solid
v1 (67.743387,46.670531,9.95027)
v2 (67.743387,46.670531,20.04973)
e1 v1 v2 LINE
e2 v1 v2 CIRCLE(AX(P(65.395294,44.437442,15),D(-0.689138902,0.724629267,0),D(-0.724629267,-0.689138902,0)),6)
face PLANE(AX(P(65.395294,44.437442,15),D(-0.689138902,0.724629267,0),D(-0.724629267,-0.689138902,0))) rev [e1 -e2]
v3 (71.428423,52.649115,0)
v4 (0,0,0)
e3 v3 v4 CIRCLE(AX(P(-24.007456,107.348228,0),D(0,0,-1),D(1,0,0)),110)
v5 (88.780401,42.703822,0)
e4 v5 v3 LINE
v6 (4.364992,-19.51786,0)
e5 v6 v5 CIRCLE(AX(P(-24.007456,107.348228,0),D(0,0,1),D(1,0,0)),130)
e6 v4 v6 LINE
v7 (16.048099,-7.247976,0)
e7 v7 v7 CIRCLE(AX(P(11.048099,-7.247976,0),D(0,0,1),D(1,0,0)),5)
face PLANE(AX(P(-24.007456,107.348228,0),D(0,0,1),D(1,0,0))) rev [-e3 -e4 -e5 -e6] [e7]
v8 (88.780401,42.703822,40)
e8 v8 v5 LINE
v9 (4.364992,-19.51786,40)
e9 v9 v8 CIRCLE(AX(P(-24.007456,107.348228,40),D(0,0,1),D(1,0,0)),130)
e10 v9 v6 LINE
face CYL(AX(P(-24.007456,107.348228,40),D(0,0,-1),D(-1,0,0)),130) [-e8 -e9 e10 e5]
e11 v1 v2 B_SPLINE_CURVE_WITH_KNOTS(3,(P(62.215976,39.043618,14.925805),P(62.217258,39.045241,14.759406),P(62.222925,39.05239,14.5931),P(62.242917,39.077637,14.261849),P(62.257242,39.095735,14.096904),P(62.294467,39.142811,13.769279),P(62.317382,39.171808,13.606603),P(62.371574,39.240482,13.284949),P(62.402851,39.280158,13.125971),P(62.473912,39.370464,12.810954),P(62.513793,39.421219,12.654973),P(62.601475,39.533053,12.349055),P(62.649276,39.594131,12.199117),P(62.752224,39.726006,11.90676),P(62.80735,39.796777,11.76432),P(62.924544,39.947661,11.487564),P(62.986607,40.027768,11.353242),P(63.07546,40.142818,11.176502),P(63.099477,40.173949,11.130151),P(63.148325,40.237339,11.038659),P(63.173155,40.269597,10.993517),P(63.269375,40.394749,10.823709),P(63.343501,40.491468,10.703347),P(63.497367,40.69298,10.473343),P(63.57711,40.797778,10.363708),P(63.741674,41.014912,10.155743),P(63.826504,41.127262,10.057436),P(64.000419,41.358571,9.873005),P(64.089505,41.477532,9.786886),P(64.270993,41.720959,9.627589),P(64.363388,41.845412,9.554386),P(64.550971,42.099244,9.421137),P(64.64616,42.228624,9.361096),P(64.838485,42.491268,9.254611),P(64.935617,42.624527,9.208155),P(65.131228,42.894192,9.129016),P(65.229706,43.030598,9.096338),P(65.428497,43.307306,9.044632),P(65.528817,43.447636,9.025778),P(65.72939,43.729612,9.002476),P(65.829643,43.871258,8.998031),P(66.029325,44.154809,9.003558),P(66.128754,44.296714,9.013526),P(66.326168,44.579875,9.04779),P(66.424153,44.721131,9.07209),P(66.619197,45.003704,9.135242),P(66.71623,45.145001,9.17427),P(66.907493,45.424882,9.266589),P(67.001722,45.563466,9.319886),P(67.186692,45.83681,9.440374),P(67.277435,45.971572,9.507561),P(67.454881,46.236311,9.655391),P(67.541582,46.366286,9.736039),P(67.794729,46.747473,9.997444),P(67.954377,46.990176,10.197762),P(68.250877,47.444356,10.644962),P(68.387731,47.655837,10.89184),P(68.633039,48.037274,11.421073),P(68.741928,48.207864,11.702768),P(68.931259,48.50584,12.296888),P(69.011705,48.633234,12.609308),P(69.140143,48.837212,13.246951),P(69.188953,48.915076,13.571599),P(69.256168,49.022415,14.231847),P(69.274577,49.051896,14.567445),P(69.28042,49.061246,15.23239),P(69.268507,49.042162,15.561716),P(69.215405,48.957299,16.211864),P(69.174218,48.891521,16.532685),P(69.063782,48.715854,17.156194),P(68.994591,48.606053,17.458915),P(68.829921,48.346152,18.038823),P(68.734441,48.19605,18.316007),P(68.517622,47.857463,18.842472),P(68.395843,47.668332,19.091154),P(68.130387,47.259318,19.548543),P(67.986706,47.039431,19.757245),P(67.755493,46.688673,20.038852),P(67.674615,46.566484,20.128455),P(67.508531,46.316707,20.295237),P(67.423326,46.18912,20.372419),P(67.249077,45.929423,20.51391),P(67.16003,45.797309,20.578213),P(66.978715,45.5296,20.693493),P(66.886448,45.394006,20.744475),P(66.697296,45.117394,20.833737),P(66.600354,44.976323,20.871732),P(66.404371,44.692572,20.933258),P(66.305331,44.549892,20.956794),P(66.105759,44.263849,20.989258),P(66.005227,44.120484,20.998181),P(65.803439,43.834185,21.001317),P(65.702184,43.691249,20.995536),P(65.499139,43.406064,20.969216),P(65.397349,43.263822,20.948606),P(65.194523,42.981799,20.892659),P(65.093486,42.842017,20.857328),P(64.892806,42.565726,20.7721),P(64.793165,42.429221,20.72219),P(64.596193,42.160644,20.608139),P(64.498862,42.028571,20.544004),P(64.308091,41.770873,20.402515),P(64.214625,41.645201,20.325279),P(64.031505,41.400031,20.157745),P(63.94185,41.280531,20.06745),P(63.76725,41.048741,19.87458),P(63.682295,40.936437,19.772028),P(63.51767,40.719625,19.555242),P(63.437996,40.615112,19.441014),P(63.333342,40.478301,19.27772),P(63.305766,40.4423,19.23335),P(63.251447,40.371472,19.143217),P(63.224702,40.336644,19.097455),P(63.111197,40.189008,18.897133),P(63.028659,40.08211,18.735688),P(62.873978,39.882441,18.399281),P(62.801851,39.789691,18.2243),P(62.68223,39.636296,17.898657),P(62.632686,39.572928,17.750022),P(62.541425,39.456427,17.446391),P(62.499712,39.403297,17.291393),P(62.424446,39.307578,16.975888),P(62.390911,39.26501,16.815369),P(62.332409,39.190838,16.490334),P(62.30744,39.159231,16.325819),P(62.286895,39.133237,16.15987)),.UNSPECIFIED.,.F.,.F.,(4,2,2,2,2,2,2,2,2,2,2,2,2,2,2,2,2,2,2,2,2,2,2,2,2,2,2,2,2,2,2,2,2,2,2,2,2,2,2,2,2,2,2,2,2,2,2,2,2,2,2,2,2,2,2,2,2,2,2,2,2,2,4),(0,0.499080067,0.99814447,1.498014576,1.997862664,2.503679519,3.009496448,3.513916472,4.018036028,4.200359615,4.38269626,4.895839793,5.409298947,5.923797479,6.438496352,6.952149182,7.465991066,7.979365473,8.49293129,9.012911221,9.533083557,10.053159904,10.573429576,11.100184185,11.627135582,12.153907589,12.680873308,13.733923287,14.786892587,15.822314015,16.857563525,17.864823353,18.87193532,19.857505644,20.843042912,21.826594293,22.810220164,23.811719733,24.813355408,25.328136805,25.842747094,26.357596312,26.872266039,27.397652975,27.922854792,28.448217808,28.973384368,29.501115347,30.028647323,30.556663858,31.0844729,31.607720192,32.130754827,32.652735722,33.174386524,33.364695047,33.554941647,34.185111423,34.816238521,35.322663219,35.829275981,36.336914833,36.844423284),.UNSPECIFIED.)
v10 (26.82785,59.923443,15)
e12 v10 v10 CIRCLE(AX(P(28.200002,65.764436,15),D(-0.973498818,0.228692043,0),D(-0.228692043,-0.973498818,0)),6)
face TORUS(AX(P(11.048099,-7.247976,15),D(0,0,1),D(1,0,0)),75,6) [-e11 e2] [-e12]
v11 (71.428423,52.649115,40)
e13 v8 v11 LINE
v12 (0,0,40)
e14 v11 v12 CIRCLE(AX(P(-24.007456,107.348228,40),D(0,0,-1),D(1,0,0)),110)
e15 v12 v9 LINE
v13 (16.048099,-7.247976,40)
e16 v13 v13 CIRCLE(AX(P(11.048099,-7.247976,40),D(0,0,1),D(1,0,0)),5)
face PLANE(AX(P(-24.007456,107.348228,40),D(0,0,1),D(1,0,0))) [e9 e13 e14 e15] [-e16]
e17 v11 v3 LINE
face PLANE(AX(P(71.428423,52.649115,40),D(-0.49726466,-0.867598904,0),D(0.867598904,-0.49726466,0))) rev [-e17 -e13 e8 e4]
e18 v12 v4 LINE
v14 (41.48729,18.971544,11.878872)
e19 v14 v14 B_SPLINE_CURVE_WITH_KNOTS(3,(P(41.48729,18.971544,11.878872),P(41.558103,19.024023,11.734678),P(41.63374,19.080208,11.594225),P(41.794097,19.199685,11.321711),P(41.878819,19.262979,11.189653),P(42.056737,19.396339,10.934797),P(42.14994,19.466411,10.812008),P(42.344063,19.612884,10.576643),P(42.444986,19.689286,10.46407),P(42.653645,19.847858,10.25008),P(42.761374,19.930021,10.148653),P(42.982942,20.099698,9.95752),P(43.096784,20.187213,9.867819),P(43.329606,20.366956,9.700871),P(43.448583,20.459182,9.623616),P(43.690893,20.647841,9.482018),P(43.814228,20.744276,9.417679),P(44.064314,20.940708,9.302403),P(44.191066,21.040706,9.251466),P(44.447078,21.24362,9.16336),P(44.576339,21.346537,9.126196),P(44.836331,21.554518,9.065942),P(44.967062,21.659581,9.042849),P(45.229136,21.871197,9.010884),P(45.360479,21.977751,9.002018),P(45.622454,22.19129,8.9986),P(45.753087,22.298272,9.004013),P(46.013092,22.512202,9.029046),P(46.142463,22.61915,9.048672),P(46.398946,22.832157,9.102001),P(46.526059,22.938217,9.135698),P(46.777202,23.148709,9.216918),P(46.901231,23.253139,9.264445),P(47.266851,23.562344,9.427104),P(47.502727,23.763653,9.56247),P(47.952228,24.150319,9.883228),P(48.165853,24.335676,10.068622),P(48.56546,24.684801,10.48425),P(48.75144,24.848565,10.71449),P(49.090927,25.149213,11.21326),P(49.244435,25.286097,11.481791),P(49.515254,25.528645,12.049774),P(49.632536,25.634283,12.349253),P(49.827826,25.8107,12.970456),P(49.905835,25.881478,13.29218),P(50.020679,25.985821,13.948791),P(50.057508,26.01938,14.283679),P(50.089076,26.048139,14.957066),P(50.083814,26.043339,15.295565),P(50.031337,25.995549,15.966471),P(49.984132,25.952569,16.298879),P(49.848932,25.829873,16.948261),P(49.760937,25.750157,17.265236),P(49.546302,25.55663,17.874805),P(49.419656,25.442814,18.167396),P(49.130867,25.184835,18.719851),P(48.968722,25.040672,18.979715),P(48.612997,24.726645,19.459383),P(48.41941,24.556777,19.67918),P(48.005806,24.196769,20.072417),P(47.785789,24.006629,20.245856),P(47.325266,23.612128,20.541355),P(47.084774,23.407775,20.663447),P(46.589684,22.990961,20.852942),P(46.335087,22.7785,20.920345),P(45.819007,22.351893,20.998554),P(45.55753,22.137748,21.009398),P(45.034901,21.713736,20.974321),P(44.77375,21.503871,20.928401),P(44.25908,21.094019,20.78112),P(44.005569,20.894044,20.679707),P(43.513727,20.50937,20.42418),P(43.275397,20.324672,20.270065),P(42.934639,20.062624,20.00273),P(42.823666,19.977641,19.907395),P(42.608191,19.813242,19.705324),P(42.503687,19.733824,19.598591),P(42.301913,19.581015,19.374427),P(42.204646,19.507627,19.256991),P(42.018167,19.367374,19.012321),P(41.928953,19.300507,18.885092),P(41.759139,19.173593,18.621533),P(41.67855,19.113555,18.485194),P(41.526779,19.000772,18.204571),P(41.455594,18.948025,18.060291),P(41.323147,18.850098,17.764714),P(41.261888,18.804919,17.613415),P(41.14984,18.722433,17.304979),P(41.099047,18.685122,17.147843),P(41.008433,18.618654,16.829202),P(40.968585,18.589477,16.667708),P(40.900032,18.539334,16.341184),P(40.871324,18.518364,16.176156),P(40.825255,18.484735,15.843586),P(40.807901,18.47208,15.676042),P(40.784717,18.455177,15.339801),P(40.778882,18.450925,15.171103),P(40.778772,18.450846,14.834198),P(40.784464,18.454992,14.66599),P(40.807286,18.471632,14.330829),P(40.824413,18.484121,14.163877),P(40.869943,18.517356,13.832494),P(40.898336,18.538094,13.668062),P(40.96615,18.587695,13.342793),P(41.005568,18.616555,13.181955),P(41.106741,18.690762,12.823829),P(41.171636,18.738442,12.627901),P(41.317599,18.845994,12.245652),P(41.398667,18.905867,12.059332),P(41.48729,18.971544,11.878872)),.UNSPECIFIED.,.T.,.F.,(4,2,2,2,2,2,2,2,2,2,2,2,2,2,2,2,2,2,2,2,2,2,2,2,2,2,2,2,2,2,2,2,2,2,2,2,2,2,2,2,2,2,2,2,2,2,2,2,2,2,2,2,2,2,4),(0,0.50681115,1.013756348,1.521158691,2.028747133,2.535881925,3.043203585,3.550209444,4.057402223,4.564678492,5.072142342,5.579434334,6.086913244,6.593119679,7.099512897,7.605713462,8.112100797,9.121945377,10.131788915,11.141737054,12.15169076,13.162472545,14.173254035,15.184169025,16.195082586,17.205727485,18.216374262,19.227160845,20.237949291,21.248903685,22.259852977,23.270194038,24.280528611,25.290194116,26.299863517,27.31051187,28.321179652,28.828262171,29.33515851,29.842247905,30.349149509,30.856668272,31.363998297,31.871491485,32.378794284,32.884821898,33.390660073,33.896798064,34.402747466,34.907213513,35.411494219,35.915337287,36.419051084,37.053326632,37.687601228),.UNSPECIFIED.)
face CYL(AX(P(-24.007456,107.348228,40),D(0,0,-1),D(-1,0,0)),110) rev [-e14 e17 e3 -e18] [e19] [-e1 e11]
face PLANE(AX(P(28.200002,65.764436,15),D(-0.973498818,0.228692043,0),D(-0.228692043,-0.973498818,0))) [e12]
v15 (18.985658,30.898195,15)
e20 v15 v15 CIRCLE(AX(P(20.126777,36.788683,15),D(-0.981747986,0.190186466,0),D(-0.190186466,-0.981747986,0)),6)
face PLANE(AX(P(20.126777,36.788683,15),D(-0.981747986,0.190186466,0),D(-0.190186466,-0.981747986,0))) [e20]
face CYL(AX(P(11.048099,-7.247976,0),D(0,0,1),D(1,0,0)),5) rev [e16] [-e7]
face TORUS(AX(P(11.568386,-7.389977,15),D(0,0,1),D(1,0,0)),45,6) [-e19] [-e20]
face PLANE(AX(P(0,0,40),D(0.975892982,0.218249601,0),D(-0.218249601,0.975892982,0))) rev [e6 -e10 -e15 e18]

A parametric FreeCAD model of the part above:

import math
import FreeCAD as App
import Part
import Sketcher
from FreeCAD import Vector
Q = App.Units.Quantity

doc = App.newDocument("Part")
params = doc.addObject("Spreadsheet::Sheet", "Params")
for row, (alias, value) in enumerate([
    ("sketch1_radius", "130 mm"),
    ("sketch1_radius2", "110 mm"),
    ("pad1_length", "40 mm"),
    ("sketch2_diameter", "10 mm"),
    ("sketch3_diameter", "12 mm"),
    ("sketch4_radius", "75 mm"),
    ("sketch5_diameter", "12 mm"),
    ("sketch6_radius", "45 mm"),
], start=1):
    params.set(f"A{row}", alias)
    params.set(f"B{row}", "=" + value)
    params.setAlias(f"B{row}", alias)

body = doc.addObject("PartDesign::Body", "Body")

sketch1 = body.newObject("Sketcher::SketchObject", "Sketch")
sketch1.AttachmentSupport = (doc.getObject("XY_Plane"), [""])
sketch1.MapMode = "FlatFace"
sketch1.addGeometry(Part.LineSegment(Vector(0, 0, 0), Vector(4, -20, 0)), False)
sketch1.addGeometry(Part.ArcOfCircle(Part.Circle(Vector(-24, 107, 0), Vector(0, 0, 1), 130), math.radians(-77), math.radians(-30)), False)
sketch1.addGeometry(Part.LineSegment(Vector(89, 43, 0), Vector(71, 53, 0)), False)
sketch1.addGeometry(Part.ArcOfCircle(Part.Circle(Vector(-24, 107, 0), Vector(0, 0, 1), 110), math.radians(-77), math.radians(-30)), False)
sketch1.addConstraint(Sketcher.Constraint("Coincident", 0, 2, 1, 1))
sketch1.addConstraint(Sketcher.Constraint("Coincident", 1, 2, 2, 1))
sketch1.addConstraint(Sketcher.Constraint("Coincident", 2, 2, 3, 2))
sketch1.addConstraint(Sketcher.Constraint("Coincident", 3, 1, 0, 1))
sketch1.addConstraint(Sketcher.Constraint("Coincident", 3, 1, -1, 1))
sketch1.addConstraint(Sketcher.Constraint("Coincident", 3, 3, 1, 3))
sketch1.addConstraint(Sketcher.Constraint("Radius", 1, Q("130 mm")))
sketch1.addConstraint(Sketcher.Constraint("Radius", 3, Q("110 mm")))
sketch1.addConstraint(Sketcher.Constraint("DistanceX", -1, 1, 1, 2, Q("88.780401 mm")))
sketch1.addConstraint(Sketcher.Constraint("DistanceY", 0, 2, -1, 1, Q("19.51786 mm")))
sketch1.addConstraint(Sketcher.Constraint("DistanceX", 3, 3, 0, 2, Q("28.372448 mm")))
sketch1.addConstraint(Sketcher.Constraint("DistanceX", 2, 2, 1, 2, Q("17.351978 mm")))
sketch1.setExpression("Constraints[6]", "Params.sketch1_radius")
sketch1.setExpression("Constraints[7]", "Params.sketch1_radius2")
pad1 = body.newObject("PartDesign::Pad", "Pad")
pad1.Profile = sketch1
pad1.setExpression("Length", "Params.pad1_length")

sketch2 = body.newObject("Sketcher::SketchObject", "Sketch001")
sketch2.AttachmentSupport = (doc.getObject("XY_Plane"), [""])
sketch2.MapMode = "FlatFace"
sketch2.AttachmentOffset = App.Placement(Vector(0, 0, 40), App.Rotation())
sketch2.addGeometry(Part.Circle(Vector(11, -7, 0), Vector(0, 0, 1), 5), False)
sketch2.addConstraint(Sketcher.Constraint("Diameter", 0, Q("10 mm")))
sketch2.addConstraint(Sketcher.Constraint("DistanceX", -1, 1, 0, 3, Q("11.048099 mm")))
sketch2.addConstraint(Sketcher.Constraint("DistanceY", 0, 3, -1, 1, Q("7.247976 mm")))
sketch2.setExpression("Constraints[0]", "Params.sketch2_diameter")
pocket1 = body.newObject("PartDesign::Pocket", "Pocket")
pocket1.Profile = sketch2
pocket1.Type = "ThroughAll"
pocket1.Midplane = True

sketch3 = body.newObject("Sketcher::SketchObject", "Sketch002")
sketch3.Placement = App.Placement(Vector(65.395294, 44.437442, 15), App.Rotation(Vector(0.724629267, 0.689138902, 0), Vector(0, 0, -1.000000001), Vector(-0.689138902, 0.724629267, 0), "ZXY"))
sketch3.addGeometry(Part.Circle(Vector(0, 0, 0), Vector(0, 0, 1), 6), False)
sketch3.addConstraint(Sketcher.Constraint("Coincident", 0, 3, -1, 1))
sketch3.addConstraint(Sketcher.Constraint("Diameter", 0, Q("12 mm")))
sketch3.setExpression("Constraints[1]", "Params.sketch3_diameter")

sketch4 = body.newObject("Sketcher::SketchObject", "Sketch003")
sketch4.AttachmentSupport = (doc.getObject("XY_Plane"), [""])
sketch4.MapMode = "FlatFace"
sketch4.AttachmentOffset = App.Placement(Vector(0, 0, 15), App.Rotation())
sketch4.addGeometry(Part.ArcOfCircle(Part.Circle(Vector(11, -7, 0), Vector(0, 0, 1), 75), math.radians(44), math.radians(77)), False)
sketch4.addConstraint(Sketcher.Constraint("Radius", 0, Q("75 mm")))
sketch4.addConstraint(Sketcher.Constraint("DistanceX", -1, 1, 0, 3, Q("11.048099 mm")))
sketch4.addConstraint(Sketcher.Constraint("DistanceX", 0, 2, 0, 1, Q("37.195292 mm")))
sketch4.addConstraint(Sketcher.Constraint("DistanceY", 0, 3, 0, 2, Q("73.012411 mm")))
sketch4.addConstraint(Sketcher.Constraint("DistanceY", 0, 3, -1, 1, Q("7.247976 mm")))
sketch4.setExpression("Constraints[0]", "Params.sketch4_radius")
doc.recompute()

additivepipe = body.newObject("PartDesign::AdditivePipe", "AdditivePipe")
additivepipe.Profile = sketch3
additivepipe.Spine = (sketch4, ["Edge1"])

sketch5 = body.newObject("Sketcher::SketchObject", "Sketch004")
sketch5.Placement = App.Placement(Vector(51.136784, 14.042286, 15), App.Rotation(Vector(0.879297732, 0.476272504, 0), Vector(0, 0, -1), Vector(-0.476272504, 0.879297732, 0), "ZXY"))
sketch5.addGeometry(Part.Circle(Vector(0, 0, 0), Vector(0, 0, 1), 6), False)
sketch5.addConstraint(Sketcher.Constraint("Coincident", 0, 3, -1, 1))
sketch5.addConstraint(Sketcher.Constraint("Diameter", 0, Q("12 mm")))
sketch5.setExpression("Constraints[1]", "Params.sketch5_diameter")

sketch6 = body.newObject("Sketcher::SketchObject", "Sketch005")
sketch6.AttachmentSupport = (doc.getObject("XY_Plane"), [""])
sketch6.MapMode = "FlatFace"
sketch6.AttachmentOffset = App.Placement(Vector(0, 0, 15), App.Rotation())
sketch6.addGeometry(Part.ArcOfCircle(Part.Circle(Vector(12, -7, 0), Vector(0, 0, 1), 45), math.radians(28), math.radians(79)), False)
sketch6.addConstraint(Sketcher.Constraint("Radius", 0, Q("45 mm")))
sketch6.addConstraint(Sketcher.Constraint("DistanceX", 0, 3, 0, 2, Q("8.558391 mm")))
sketch6.addConstraint(Sketcher.Constraint("DistanceX", -1, 1, 0, 3, Q("11.568386 mm")))
sketch6.addConstraint(Sketcher.Constraint("DistanceY", 0, 3, -1, 1, Q("7.389977 mm")))
sketch6.addConstraint(Sketcher.Constraint("DistanceX", -1, 1, 0, 1, Q("51.136784 mm")))
sketch6.setExpression("Constraints[0]", "Params.sketch6_radius")
doc.recompute()

additivepipe2 = body.newObject("PartDesign::AdditivePipe", "AdditivePipe001")
additivepipe2.Profile = sketch5
additivepipe2.Spine = (sketch6, ["Edge1"])

doc.recompute()
